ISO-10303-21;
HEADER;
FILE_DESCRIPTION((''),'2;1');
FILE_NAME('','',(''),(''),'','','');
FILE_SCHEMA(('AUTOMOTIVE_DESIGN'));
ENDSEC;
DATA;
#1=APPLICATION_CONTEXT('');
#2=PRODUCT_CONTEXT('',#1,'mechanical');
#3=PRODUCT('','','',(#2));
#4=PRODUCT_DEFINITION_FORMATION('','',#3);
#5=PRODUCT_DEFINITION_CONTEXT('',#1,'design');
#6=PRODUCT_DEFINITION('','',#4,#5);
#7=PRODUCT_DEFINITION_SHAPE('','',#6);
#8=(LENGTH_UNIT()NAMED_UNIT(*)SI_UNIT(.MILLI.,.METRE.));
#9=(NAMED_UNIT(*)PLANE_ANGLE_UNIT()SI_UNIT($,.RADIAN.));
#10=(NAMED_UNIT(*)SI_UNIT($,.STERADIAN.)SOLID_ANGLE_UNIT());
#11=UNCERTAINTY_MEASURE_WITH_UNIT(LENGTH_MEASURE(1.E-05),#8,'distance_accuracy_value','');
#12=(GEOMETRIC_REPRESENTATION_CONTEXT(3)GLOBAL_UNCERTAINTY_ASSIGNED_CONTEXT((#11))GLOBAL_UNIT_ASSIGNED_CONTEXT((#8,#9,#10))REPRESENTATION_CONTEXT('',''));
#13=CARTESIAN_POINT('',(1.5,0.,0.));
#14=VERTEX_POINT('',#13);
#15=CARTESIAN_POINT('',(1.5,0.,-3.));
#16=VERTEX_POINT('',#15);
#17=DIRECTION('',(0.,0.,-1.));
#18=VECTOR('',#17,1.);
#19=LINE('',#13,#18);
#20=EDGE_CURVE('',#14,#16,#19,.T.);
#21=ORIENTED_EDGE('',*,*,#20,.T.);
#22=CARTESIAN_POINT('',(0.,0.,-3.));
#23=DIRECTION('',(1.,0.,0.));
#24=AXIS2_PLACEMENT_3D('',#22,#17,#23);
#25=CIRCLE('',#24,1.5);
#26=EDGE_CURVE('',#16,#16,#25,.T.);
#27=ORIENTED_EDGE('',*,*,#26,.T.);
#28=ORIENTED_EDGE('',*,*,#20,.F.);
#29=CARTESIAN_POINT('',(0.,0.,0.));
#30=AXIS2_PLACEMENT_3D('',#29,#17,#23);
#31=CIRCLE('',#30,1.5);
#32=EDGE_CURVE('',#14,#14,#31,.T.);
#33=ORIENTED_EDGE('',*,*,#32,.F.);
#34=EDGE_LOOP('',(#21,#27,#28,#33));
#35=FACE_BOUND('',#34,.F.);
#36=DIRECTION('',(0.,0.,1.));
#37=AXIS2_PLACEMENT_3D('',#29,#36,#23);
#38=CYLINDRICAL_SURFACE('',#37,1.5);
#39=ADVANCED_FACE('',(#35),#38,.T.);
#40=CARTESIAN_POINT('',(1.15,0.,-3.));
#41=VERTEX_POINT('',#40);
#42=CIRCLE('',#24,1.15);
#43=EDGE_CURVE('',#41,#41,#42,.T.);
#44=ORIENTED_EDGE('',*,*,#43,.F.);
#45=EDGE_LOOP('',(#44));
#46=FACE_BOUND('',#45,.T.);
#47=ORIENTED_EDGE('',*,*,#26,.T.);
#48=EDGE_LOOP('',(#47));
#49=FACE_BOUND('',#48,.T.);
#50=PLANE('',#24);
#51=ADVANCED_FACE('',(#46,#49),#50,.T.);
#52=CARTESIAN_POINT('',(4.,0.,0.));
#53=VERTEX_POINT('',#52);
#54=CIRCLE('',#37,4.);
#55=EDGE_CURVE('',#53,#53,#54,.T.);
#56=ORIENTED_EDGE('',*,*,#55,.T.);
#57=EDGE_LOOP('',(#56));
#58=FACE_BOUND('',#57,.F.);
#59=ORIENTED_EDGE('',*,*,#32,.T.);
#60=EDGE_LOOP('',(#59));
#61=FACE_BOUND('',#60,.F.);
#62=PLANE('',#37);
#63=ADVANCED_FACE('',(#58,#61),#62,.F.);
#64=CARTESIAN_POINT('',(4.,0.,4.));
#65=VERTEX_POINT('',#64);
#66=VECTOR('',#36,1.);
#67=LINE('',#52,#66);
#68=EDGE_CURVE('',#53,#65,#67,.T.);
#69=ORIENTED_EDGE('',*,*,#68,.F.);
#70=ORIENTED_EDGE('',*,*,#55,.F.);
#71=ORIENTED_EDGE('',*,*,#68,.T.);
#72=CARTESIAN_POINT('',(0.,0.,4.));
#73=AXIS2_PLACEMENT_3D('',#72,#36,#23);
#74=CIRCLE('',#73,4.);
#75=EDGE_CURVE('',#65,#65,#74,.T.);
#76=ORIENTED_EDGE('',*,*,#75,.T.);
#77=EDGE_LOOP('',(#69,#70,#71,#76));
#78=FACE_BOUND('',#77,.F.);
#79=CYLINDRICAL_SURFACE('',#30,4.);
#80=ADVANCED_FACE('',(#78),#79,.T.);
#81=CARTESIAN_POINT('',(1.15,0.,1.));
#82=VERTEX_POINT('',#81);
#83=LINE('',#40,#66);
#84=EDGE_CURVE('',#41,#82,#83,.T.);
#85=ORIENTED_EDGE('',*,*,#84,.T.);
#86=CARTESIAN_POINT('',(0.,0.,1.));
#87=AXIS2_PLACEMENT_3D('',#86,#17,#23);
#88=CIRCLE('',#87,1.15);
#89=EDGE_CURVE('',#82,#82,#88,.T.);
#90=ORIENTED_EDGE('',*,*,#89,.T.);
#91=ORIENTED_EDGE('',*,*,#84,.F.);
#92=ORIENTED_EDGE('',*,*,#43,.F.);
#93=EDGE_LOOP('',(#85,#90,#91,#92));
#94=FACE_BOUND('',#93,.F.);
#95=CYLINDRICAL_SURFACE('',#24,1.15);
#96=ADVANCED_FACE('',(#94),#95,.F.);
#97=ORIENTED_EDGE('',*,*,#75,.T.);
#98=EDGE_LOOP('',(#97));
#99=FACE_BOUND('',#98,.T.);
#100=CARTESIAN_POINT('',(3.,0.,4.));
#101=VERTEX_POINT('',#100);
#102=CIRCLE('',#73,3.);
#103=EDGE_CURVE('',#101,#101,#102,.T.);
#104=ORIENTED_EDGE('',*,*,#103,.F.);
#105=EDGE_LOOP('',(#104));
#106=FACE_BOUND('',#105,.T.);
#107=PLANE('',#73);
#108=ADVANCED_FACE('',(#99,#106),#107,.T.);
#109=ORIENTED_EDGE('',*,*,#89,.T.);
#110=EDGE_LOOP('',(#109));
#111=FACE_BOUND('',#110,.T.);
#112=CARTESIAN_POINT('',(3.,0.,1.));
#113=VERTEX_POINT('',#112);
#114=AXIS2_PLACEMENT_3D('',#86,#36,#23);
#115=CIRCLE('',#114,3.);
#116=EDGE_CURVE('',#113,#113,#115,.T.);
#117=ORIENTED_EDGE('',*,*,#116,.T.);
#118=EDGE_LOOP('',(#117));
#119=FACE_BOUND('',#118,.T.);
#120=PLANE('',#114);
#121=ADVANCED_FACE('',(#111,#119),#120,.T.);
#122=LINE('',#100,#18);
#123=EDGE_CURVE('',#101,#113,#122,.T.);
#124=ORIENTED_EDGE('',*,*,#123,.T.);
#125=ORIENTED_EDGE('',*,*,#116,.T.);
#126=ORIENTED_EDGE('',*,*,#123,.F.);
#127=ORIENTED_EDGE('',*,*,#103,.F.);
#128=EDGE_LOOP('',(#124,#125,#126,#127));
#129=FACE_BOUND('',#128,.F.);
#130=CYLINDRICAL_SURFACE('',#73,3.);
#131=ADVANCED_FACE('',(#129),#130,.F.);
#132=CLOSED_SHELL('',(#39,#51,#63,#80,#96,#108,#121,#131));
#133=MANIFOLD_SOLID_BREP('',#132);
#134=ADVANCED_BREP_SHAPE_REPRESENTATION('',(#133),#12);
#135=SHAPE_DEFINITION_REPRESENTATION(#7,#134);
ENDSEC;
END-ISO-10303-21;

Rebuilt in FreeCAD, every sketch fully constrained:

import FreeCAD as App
import Part
import Sketcher

doc = App.newDocument("Part")
body = doc.addObject("PartDesign::Body", "Body")

# Sketch on XY plane
sketch1 = body.newObject("Sketcher::SketchObject", "Sketch")
sketch1.AttachmentSupport = (doc.getObject("XY_Plane"), [""])
sketch1.MapMode = "FlatFace"
sketch1.addGeometry(Part.Circle(App.Vector(0, 0, 0), App.Vector(0, 0, 1), 4), False)
sketch1.addConstraint([
    Sketcher.Constraint("Coincident", 0, 3, -1, 1),
    Sketcher.Constraint("Diameter", 0, 8.0),
])
pad1 = body.newObject("PartDesign::Pad", "Pad")
pad1.Profile = sketch1
pad1.Length = 4

# Sketch on XY plane
sketch2 = body.newObject("Sketcher::SketchObject", "Sketch001")
sketch2.AttachmentSupport = (doc.getObject("XY_Plane"), [""])
sketch2.MapMode = "FlatFace"
sketch2.addGeometry(Part.Circle(App.Vector(0, 0, 0), App.Vector(0, 0, 1), 1.5), False)
sketch2.addConstraint([
    Sketcher.Constraint("Coincident", 0, 3, -1, 1),
    Sketcher.Constraint("Diameter", 0, 3.0),
])
pad2 = body.newObject("PartDesign::Pad", "Pad001")
pad2.Profile = sketch2
pad2.Length = 3
pad2.Reversed = True

# Sketch on XY plane
sketch3 = body.newObject("Sketcher::SketchObject", "Sketch002")
sketch3.AttachmentSupport = (doc.getObject("XY_Plane"), [""])
sketch3.MapMode = "FlatFace"
sketch3.AttachmentOffset = App.Placement(App.Vector(0, 0, 4), App.Rotation())
sketch3.addGeometry(Part.Circle(App.Vector(0, 0, 0), App.Vector(0, 0, 1), 3), False)
sketch3.addConstraint([
    Sketcher.Constraint("Coincident", 0, 3, -1, 1),
    Sketcher.Constraint("Diameter", 0, 6.0),
])
pocket1 = body.newObject("PartDesign::Pocket", "Pocket")
pocket1.Profile = sketch3
pocket1.Length = 3

# Sketch on XY plane
sketch4 = body.newObject("Sketcher::SketchObject", "Sketch003")
sketch4.AttachmentSupport = (doc.getObject("XY_Plane"), [""])
sketch4.MapMode = "FlatFace"
sketch4.AttachmentOffset = App.Placement(App.Vector(0, 0, -3), App.Rotation())
sketch4.addGeometry(Part.Circle(App.Vector(0, 0, 0), App.Vector(0, 0, 1), 1.1), False)
sketch4.addConstraint([
    Sketcher.Constraint("Coincident", 0, 3, -1, 1),
    Sketcher.Constraint("Diameter", 0, 2.3),
])
pocket2 = body.newObject("PartDesign::Pocket", "Pocket001")
pocket2.Profile = sketch4
pocket2.Length = 25
pocket2.Reversed = True

doc.recompute()
